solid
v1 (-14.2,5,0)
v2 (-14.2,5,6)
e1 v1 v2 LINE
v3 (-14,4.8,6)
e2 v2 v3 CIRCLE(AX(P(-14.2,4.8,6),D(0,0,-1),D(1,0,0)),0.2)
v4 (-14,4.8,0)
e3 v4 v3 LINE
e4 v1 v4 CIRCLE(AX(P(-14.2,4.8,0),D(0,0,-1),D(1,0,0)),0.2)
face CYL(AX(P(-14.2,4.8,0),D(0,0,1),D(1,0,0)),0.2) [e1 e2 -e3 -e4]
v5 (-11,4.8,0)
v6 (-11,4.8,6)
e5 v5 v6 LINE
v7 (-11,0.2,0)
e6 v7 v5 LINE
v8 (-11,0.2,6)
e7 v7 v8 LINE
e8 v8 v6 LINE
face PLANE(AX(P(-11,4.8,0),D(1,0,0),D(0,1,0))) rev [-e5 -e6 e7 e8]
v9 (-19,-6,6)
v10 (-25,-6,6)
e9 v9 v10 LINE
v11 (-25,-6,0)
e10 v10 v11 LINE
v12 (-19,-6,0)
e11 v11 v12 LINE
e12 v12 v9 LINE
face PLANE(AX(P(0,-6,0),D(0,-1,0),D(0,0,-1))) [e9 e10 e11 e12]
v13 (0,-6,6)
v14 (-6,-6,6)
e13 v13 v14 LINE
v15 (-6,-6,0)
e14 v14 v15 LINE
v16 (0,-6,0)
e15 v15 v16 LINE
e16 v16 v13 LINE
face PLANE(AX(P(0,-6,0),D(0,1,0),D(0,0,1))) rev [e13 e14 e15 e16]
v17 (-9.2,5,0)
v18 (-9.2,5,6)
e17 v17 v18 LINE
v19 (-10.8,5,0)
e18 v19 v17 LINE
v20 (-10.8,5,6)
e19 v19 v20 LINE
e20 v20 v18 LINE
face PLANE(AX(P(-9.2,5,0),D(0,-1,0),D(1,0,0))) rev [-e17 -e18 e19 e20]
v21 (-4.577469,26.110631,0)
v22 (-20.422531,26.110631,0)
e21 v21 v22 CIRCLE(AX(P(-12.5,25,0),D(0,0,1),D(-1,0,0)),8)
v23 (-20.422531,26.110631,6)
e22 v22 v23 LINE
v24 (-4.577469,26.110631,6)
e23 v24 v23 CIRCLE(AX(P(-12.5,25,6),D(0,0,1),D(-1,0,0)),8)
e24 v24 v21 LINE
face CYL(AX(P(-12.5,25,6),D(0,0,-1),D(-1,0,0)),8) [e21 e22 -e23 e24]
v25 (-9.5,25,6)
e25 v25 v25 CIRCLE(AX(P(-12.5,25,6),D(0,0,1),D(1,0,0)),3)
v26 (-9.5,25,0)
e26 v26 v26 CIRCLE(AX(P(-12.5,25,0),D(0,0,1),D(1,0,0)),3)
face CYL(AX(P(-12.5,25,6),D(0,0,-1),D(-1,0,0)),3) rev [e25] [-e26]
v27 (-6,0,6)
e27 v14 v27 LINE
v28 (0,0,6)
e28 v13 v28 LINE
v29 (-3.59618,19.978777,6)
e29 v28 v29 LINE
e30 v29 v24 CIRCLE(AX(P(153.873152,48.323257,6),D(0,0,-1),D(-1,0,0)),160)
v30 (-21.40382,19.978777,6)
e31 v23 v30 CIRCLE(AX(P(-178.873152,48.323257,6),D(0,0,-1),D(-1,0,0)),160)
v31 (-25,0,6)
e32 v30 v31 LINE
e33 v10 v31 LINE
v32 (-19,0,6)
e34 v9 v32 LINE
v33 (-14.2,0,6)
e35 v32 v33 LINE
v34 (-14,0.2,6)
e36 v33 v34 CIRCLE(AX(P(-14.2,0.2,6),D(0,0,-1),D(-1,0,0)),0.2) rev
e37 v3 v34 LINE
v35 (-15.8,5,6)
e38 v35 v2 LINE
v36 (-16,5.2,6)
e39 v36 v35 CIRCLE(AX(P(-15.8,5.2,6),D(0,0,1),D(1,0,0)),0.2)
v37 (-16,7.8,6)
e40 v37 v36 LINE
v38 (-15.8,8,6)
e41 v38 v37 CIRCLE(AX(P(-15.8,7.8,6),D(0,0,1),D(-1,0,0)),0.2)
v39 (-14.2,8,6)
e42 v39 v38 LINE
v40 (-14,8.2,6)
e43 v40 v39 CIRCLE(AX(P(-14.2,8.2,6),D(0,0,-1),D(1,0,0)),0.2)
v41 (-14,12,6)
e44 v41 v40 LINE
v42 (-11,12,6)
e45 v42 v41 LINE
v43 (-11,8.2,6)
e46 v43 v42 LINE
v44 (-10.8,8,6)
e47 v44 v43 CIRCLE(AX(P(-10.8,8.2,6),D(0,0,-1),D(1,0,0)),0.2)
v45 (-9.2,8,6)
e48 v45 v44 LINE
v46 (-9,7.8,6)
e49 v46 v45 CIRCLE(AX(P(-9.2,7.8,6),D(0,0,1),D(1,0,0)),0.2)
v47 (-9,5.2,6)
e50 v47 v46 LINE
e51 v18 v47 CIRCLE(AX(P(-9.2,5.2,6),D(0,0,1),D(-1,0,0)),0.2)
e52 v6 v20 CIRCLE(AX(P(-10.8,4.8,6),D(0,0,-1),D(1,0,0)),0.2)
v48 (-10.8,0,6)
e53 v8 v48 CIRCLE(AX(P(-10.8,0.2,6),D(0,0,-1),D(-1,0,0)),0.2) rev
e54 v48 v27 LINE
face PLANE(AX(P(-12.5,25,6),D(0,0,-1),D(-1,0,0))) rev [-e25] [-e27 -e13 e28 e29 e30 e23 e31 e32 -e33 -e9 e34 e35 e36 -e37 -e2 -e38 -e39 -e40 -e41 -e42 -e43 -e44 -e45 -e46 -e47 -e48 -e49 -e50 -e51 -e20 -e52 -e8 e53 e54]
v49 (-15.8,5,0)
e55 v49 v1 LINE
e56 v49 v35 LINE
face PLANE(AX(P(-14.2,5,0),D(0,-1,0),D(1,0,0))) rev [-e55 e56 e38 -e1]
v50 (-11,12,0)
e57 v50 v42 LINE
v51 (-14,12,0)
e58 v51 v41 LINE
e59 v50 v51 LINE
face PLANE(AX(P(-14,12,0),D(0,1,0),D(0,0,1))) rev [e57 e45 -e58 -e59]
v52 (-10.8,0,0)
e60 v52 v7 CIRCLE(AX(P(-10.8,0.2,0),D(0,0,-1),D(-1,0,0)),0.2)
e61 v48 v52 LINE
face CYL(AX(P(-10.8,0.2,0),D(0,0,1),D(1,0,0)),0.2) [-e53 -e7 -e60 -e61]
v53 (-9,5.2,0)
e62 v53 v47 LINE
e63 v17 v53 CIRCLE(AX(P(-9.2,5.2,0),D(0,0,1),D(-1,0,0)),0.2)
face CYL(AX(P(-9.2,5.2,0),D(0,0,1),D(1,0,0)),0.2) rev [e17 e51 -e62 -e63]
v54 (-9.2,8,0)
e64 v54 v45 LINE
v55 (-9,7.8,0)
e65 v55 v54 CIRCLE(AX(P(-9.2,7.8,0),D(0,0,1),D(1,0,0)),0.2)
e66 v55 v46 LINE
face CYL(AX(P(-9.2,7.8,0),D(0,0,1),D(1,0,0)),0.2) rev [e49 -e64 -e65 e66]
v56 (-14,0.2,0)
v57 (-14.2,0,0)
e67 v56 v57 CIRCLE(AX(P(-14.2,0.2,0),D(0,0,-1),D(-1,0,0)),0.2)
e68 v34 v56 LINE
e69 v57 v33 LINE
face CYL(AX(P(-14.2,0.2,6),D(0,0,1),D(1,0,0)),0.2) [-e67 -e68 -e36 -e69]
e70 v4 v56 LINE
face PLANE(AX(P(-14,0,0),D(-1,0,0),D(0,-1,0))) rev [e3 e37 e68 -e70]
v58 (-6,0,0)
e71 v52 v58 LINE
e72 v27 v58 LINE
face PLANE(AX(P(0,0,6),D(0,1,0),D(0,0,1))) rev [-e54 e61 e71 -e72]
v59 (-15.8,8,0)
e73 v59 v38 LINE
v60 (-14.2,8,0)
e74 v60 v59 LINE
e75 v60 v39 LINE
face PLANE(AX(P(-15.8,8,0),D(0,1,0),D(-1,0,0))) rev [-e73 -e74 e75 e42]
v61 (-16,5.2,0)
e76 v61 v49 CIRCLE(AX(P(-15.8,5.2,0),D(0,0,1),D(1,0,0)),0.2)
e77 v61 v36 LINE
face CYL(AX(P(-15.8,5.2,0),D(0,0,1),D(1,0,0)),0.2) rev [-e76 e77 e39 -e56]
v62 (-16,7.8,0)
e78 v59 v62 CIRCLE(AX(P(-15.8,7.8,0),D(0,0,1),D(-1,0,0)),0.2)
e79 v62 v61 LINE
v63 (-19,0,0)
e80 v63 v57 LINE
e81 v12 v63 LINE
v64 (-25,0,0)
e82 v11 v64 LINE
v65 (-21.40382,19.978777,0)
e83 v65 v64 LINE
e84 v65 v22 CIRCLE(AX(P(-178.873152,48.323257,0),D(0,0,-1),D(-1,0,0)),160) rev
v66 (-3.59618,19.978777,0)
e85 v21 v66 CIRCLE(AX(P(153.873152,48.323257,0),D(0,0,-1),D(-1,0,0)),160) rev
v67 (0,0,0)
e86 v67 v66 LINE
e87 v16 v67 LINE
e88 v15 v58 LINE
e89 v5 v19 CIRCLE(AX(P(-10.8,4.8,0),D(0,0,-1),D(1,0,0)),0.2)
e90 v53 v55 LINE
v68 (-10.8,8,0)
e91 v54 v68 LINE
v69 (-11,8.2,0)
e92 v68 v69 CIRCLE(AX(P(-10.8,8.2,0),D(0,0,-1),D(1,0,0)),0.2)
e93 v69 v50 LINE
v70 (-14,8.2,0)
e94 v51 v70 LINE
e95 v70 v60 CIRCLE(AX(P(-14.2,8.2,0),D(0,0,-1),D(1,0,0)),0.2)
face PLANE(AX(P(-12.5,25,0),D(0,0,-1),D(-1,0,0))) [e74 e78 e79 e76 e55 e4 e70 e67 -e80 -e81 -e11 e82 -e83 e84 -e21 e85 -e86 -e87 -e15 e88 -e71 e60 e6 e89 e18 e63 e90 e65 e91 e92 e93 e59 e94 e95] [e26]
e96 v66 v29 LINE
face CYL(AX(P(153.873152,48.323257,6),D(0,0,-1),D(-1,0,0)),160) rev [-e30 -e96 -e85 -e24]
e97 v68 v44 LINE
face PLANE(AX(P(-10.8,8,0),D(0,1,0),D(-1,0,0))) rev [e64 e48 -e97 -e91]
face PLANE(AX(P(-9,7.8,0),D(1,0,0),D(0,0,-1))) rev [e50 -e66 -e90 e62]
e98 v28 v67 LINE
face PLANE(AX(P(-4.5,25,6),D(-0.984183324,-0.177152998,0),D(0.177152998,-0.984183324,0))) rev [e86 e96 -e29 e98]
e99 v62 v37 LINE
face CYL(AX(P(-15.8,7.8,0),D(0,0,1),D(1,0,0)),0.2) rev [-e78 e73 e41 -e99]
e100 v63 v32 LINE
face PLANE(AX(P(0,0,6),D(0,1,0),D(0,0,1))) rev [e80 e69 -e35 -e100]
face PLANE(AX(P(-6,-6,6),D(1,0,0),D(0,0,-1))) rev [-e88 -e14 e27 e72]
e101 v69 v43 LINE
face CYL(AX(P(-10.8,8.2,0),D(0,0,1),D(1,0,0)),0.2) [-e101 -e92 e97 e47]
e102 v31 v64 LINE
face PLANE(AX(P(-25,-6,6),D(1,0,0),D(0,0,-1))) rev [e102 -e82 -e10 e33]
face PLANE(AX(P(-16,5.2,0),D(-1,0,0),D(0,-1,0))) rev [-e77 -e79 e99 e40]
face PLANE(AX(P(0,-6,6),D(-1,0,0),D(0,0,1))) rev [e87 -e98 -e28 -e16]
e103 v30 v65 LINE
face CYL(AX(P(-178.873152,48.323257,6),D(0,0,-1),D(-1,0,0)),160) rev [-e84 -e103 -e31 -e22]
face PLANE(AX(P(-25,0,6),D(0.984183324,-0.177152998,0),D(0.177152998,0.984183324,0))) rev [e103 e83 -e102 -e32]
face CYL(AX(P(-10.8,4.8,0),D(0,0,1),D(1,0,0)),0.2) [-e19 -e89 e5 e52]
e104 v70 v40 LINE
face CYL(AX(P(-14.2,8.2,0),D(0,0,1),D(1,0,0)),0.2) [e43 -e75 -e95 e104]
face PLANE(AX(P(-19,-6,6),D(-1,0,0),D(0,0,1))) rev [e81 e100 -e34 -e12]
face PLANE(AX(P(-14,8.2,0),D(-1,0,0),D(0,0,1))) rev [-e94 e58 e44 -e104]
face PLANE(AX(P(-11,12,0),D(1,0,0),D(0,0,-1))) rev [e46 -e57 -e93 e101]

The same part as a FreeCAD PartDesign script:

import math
import FreeCAD as App
import Part
import Sketcher


def edges_at(feature, points):
    """Names of the edges that pass closest to the given points."""
    edges = feature.Shape.Edges
    near = lambda p: min(range(len(edges)), key=lambda i: edges[i].distToShape(Part.Vertex(*p))[0])
    return sorted({f"Edge{near(p) + 1}" for p in points})

doc = App.newDocument("Part")
body = doc.addObject("PartDesign::Body", "Body")

sketch1 = body.newObject("Sketcher::SketchObject", "Sketch")
sketch1.AttachmentSupport = (doc.getObject("XY_Plane"), [""])
sketch1.MapMode = "FlatFace"
sketch1.addGeometry(Part.LineSegment(App.Vector(-25, 0, 0), App.Vector(0, 0, 0)), False)
sketch1.addGeometry(Part.LineSegment(App.Vector(0, 0, 0), App.Vector(-4.5, 25, 0)), False)
sketch1.addGeometry(Part.ArcOfCircle(Part.Circle(App.Vector(-12.5, 25, 0), App.Vector(0, 0, 1), 8), math.radians(0), math.radians(180)), False)
sketch1.addGeometry(Part.LineSegment(App.Vector(-20.5, 25, 0), App.Vector(-25, 0, 0)), False)
sketch1.addGeometry(Part.Circle(App.Vector(-12.5, 25, 0), App.Vector(0, 0, 1), 3), False)
sketch1.addConstraint(Sketcher.Constraint("Coincident", 0, 2, 1, 1))
sketch1.addConstraint(Sketcher.Constraint("Coincident", 1, 2, 2, 1))
sketch1.addConstraint(Sketcher.Constraint("Coincident", 2, 2, 3, 1))
sketch1.addConstraint(Sketcher.Constraint("Coincident", 3, 2, 0, 1))
sketch1.addConstraint(Sketcher.Constraint("Horizontal", 0))
sketch1.addConstraint(Sketcher.Constraint("Coincident", 0, 2, -1, 1))
sketch1.addConstraint(Sketcher.Constraint("Coincident", 4, 3, 2, 3))
sketch1.addConstraint(Sketcher.Constraint("Horizontal", 4, 3, 1, 2))
sketch1.addConstraint(Sketcher.Constraint("Horizontal", 1, 2, 2, 2))
sketch1.addConstraint(Sketcher.Constraint("Equal", 1, 3))
sketch1.addConstraint(Sketcher.Constraint("Diameter", 4, 6.0))
sketch1.addConstraint(Sketcher.Constraint("Radius", 2, 8.0))
sketch1.addConstraint(Sketcher.Constraint("DistanceX", 0, 1, 0, 2, 25.0))
sketch1.addConstraint(Sketcher.Constraint("DistanceY", -1, 1, 2, 3, 25.0))
pad1 = body.newObject("PartDesign::Pad", "Pad")
pad1.Profile = sketch1
pad1.Length = 6
doc.recompute()

fillet = body.newObject("PartDesign::Fillet", "Fillet")
fillet.Base = (pad1, edges_at(pad1, [(-20.5, 25, 3), (-4.5, 25, 3)]))
fillet.Radius = 160

sketch2 = body.newObject("Sketcher::SketchObject", "Sketch001")
sketch2.AttachmentSupport = (doc.getObject("XY_Plane"), [""])
sketch2.MapMode = "FlatFace"
sketch2.AttachmentOffset = App.Placement(App.Vector(0, 0, 6), App.Rotation())
sketch2.addGeometry(Part.LineSegment(App.Vector(-14, 4.8, 0), App.Vector(-14, 0, 0)), False)
sketch2.addGeometry(Part.LineSegment(App.Vector(-14, 0, 0), App.Vector(-11, 0, 0)), False)
sketch2.addGeometry(Part.LineSegment(App.Vector(-11, 0, 0), App.Vector(-11, 4.8, 0)), False)
sketch2.addGeometry(Part.ArcOfCircle(Part.Circle(App.Vector(-10.8, 4.8, 0), App.Vector(0, 0, 1), 0.2), math.radians(90), math.radians(180)), False)
sketch2.addGeometry(Part.LineSegment(App.Vector(-10.8, 5, 0), App.Vector(-9.2, 5, 0)), False)
sketch2.addGeometry(Part.ArcOfCircle(Part.Circle(App.Vector(-9.2, 5.2, 0), App.Vector(0, 0, 1), 0.2), math.radians(-90), math.radians(0)), False)
sketch2.addGeometry(Part.LineSegment(App.Vector(-9, 5.2, 0), App.Vector(-9, 7.8, 0)), False)
sketch2.addGeometry(Part.ArcOfCircle(Part.Circle(App.Vector(-9.2, 7.8, 0), App.Vector(0, 0, 1), 0.2), math.radians(0), math.radians(90)), False)
sketch2.addGeometry(Part.LineSegment(App.Vector(-9.2, 8, 0), App.Vector(-10.8, 8, 0)), False)
sketch2.addGeometry(Part.ArcOfCircle(Part.Circle(App.Vector(-10.8, 8.2, 0), App.Vector(0, 0, 1), 0.2), math.radians(-180), math.radians(-90)), False)
sketch2.addGeometry(Part.LineSegment(App.Vector(-11, 8.2, 0), App.Vector(-11, 12, 0)), False)
sketch2.addGeometry(Part.LineSegment(App.Vector(-11, 12, 0), App.Vector(-14, 12, 0)), False)
sketch2.addGeometry(Part.LineSegment(App.Vector(-14, 12, 0), App.Vector(-14, 8.2, 0)), False)
sketch2.addGeometry(Part.ArcOfCircle(Part.Circle(App.Vector(-14.2, 8.2, 0), App.Vector(0, 0, 1), 0.2), math.radians(-90), math.radians(0)), False)
sketch2.addGeometry(Part.LineSegment(App.Vector(-14.2, 8, 0), App.Vector(-15.8, 8, 0)), False)
sketch2.addGeometry(Part.ArcOfCircle(Part.Circle(App.Vector(-15.8, 7.8, 0), App.Vector(0, 0, 1), 0.2), math.radians(90), math.radians(180)), False)
sketch2.addGeometry(Part.LineSegment(App.Vector(-16, 7.8, 0), App.Vector(-16, 5.2, 0)), False)
sketch2.addGeometry(Part.ArcOfCircle(Part.Circle(App.Vector(-15.8, 5.2, 0), App.Vector(0, 0, 1), 0.2), math.radians(-180), math.radians(-90)), False)
sketch2.addGeometry(Part.LineSegment(App.Vector(-15.8, 5, 0), App.Vector(-14.2, 5, 0)), False)
sketch2.addGeometry(Part.ArcOfCircle(Part.Circle(App.Vector(-14.2, 4.8, 0), App.Vector(0, 0, 1), 0.2), math.radians(0), math.radians(90)), False)
sketch2.addConstraint(Sketcher.Constraint("Coincident", 0, 2, 1, 1))
sketch2.addConstraint(Sketcher.Constraint("Coincident", 1, 2, 2, 1))
sketch2.addConstraint(Sketcher.Constraint("Tangent", 2, 2, 3, 2))
sketch2.addConstraint(Sketcher.Constraint("Tangent", 3, 1, 4, 1))
sketch2.addConstraint(Sketcher.Constraint("Tangent", 4, 2, 5, 1))
sketch2.addConstraint(Sketcher.Constraint("Tangent", 5, 2, 6, 1))
sketch2.addConstraint(Sketcher.Constraint("Tangent", 6, 2, 7, 1))
sketch2.addConstraint(Sketcher.Constraint("Tangent", 7, 2, 8, 1))
sketch2.addConstraint(Sketcher.Constraint("Tangent", 8, 2, 9, 2))
sketch2.addConstraint(Sketcher.Constraint("Tangent", 9, 1, 10, 1))
sketch2.addConstraint(Sketcher.Constraint("Coincident", 10, 2, 11, 1))
sketch2.addConstraint(Sketcher.Constraint("Coincident", 11, 2, 12, 1))
sketch2.addConstraint(Sketcher.Constraint("Tangent", 12, 2, 13, 2))
sketch2.addConstraint(Sketcher.Constraint("Tangent", 13, 1, 14, 1))
sketch2.addConstraint(Sketcher.Constraint("Tangent", 14, 2, 15, 1))
sketch2.addConstraint(Sketcher.Constraint("Tangent", 15, 2, 16, 1))
sketch2.addConstraint(Sketcher.Constraint("Tangent", 16, 2, 17, 1))
sketch2.addConstraint(Sketcher.Constraint("Tangent", 17, 2, 18, 1))
sketch2.addConstraint(Sketcher.Constraint("Tangent", 18, 2, 19, 2))
sketch2.addConstraint(Sketcher.Constraint("Tangent", 19, 1, 0, 1))
sketch2.addConstraint(Sketcher.Constraint("Vertical", 0))
sketch2.addConstraint(Sketcher.Constraint("Horizontal", 1))
sketch2.addConstraint(Sketcher.Constraint("Vertical", 2))
sketch2.addConstraint(Sketcher.Constraint("Horizontal", 4))
sketch2.addConstraint(Sketcher.Constraint("Vertical", 6))
sketch2.addConstraint(Sketcher.Constraint("Horizontal", 8))
sketch2.addConstraint(Sketcher.Constraint("Vertical", 10))
sketch2.addConstraint(Sketcher.Constraint("Horizontal", 11))
sketch2.addConstraint(Sketcher.Constraint("Vertical", 12))
sketch2.addConstraint(Sketcher.Constraint("Horizontal", 14))
sketch2.addConstraint(Sketcher.Constraint("Vertical", 16))
sketch2.addConstraint(Sketcher.Constraint("Horizontal", 18))
sketch2.addConstraint(Sketcher.Constraint("Equal", 3, 5))
sketch2.addConstraint(Sketcher.Constraint("Equal", 5, 7))
sketch2.addConstraint(Sketcher.Constraint("Equal", 7, 9))
sketch2.addConstraint(Sketcher.Constraint("Equal", 9, 13))
sketch2.addConstraint(Sketcher.Constraint("Equal", 13, 15))
sketch2.addConstraint(Sketcher.Constraint("Equal", 15, 17))
sketch2.addConstraint(Sketcher.Constraint("Equal", 17, 19))
sketch2.addConstraint(Sketcher.Constraint("PointOnObject", 0, 2, -1))
sketch2.addConstraint(Sketcher.Constraint("Horizontal", 9, 3, 13, 3))
sketch2.addConstraint(Sketcher.Constraint("Horizontal", 5, 3, 17, 3))
sketch2.addConstraint(Sketcher.Constraint("Vertical", 3, 3, 9, 3))
sketch2.addConstraint(Sketcher.Constraint("Vertical", 13, 3, 19, 3))
sketch2.addConstraint(Sketcher.Constraint("Equal", 8, 14))
sketch2.addConstraint(Sketcher.Constraint("Radius", 3, 0.2))
sketch2.addConstraint(Sketcher.Constraint("DistanceX", 1, 1, 1, 2, 3.0))
sketch2.addConstraint(Sketcher.Constraint("DistanceX", 4, 1, 4, 2, 1.6))
sketch2.addConstraint(Sketcher.Constraint("DistanceY", 0, 2, 0, 1, 4.8))
sketch2.addConstraint(Sketcher.Constraint("DistanceY", 6, 1, 6, 2, 2.6))
sketch2.addConstraint(Sketcher.Constraint("DistanceY", 10, 1, 10, 2, 3.8))
sketch2.addConstraint(Sketcher.Constraint("DistanceX", 0, 2, -1, 1, 14.0))
pocket1 = body.newObject("PartDesign::Pocket", "Pocket")
pocket1.Profile = sketch2
pocket1.Type = "ThroughAll"

sketch3 = body.newObject("Sketcher::SketchObject", "Sketch002")
sketch3.AttachmentSupport = (doc.getObject("XZ_Plane"), [""])
sketch3.MapMode = "FlatFace"
sketch3.addGeometry(Part.LineSegment(App.Vector(-25, 6, 0), App.Vector(-25, 0, 0)), False)
sketch3.addGeometry(Part.LineSegment(App.Vector(-25, 0, 0), App.Vector(-19, 0, 0)), False)
sketch3.addGeometry(Part.LineSegment(App.Vector(-19, 0, 0), App.Vector(-19, 6, 0)), False)
sketch3.addGeometry(Part.LineSegment(App.Vector(-19, 6, 0), App.Vector(-25, 6, 0)), False)
sketch3.addGeometry(Part.LineSegment(App.Vector(-6, 6, 0), App.Vector(-6, 0, 0)), False)
sketch3.addGeometry(Part.LineSegment(App.Vector(-6, 0, 0), App.Vector(0, 0, 0)), False)
sketch3.addGeometry(Part.LineSegment(App.Vector(0, 0, 0), App.Vector(0, 6, 0)), False)
sketch3.addGeometry(Part.LineSegment(App.Vector(0, 6, 0), App.Vector(-6, 6, 0)), False)
sketch3.addConstraint(Sketcher.Constraint("Coincident", 0, 2, 1, 1))
sketch3.addConstraint(Sketcher.Constraint("Coincident", 1, 2, 2, 1))
sketch3.addConstraint(Sketcher.Constraint("Coincident", 2, 2, 3, 1))
sketch3.addConstraint(Sketcher.Constraint("Coincident", 3, 2, 0, 1))
sketch3.addConstraint(Sketcher.Constraint("Coincident", 4, 2, 5, 1))
sketch3.addConstraint(Sketcher.Constraint("Coincident", 5, 2, 6, 1))
sketch3.addConstraint(Sketcher.Constraint("Coincident", 6, 2, 7, 1))
sketch3.addConstraint(Sketcher.Constraint("Coincident", 7, 2, 4, 1))
sketch3.addConstraint(Sketcher.Constraint("Vertical", 0))
sketch3.addConstraint(Sketcher.Constraint("Horizontal", 1))
sketch3.addConstraint(Sketcher.Constraint("Vertical", 2))
sketch3.addConstraint(Sketcher.Constraint("Horizontal", 3))
sketch3.addConstraint(Sketcher.Constraint("Vertical", 4))
sketch3.addConstraint(Sketcher.Constraint("Horizontal", 5))
sketch3.addConstraint(Sketcher.Constraint("Vertical", 6))
sketch3.addConstraint(Sketcher.Constraint("Horizontal", 7))
sketch3.addConstraint(Sketcher.Constraint("Coincident", 5, 2, -1, 1))
sketch3.addConstraint(Sketcher.Constraint("PointOnObject", 0, 2, -1))
sketch3.addConstraint(Sketcher.Constraint("Horizontal", 3, 2, 6, 2))
sketch3.addConstraint(Sketcher.Constraint("Equal", 3, 5))
sketch3.addConstraint(Sketcher.Constraint("Equal", 7, 0))
sketch3.addConstraint(Sketcher.Constraint("DistanceX", 1, 1, 1, 2, 6.0))
sketch3.addConstraint(Sketcher.Constraint("DistanceX", 0, 2, -1, 1, 25.0))
pad2 = body.newObject("PartDesign::Pad", "Pad001")
pad2.Profile = sketch3
pad2.Length = 6
doc.recompute()

fillet2 = body.newObject("PartDesign::Fillet", "Fillet001")
fillet2.Base = (pad2, edges_at(pad2, [(-11, 0, 3), (-14, 0, 3)]))
fillet2.Radius = 0.2

doc.recompute()
